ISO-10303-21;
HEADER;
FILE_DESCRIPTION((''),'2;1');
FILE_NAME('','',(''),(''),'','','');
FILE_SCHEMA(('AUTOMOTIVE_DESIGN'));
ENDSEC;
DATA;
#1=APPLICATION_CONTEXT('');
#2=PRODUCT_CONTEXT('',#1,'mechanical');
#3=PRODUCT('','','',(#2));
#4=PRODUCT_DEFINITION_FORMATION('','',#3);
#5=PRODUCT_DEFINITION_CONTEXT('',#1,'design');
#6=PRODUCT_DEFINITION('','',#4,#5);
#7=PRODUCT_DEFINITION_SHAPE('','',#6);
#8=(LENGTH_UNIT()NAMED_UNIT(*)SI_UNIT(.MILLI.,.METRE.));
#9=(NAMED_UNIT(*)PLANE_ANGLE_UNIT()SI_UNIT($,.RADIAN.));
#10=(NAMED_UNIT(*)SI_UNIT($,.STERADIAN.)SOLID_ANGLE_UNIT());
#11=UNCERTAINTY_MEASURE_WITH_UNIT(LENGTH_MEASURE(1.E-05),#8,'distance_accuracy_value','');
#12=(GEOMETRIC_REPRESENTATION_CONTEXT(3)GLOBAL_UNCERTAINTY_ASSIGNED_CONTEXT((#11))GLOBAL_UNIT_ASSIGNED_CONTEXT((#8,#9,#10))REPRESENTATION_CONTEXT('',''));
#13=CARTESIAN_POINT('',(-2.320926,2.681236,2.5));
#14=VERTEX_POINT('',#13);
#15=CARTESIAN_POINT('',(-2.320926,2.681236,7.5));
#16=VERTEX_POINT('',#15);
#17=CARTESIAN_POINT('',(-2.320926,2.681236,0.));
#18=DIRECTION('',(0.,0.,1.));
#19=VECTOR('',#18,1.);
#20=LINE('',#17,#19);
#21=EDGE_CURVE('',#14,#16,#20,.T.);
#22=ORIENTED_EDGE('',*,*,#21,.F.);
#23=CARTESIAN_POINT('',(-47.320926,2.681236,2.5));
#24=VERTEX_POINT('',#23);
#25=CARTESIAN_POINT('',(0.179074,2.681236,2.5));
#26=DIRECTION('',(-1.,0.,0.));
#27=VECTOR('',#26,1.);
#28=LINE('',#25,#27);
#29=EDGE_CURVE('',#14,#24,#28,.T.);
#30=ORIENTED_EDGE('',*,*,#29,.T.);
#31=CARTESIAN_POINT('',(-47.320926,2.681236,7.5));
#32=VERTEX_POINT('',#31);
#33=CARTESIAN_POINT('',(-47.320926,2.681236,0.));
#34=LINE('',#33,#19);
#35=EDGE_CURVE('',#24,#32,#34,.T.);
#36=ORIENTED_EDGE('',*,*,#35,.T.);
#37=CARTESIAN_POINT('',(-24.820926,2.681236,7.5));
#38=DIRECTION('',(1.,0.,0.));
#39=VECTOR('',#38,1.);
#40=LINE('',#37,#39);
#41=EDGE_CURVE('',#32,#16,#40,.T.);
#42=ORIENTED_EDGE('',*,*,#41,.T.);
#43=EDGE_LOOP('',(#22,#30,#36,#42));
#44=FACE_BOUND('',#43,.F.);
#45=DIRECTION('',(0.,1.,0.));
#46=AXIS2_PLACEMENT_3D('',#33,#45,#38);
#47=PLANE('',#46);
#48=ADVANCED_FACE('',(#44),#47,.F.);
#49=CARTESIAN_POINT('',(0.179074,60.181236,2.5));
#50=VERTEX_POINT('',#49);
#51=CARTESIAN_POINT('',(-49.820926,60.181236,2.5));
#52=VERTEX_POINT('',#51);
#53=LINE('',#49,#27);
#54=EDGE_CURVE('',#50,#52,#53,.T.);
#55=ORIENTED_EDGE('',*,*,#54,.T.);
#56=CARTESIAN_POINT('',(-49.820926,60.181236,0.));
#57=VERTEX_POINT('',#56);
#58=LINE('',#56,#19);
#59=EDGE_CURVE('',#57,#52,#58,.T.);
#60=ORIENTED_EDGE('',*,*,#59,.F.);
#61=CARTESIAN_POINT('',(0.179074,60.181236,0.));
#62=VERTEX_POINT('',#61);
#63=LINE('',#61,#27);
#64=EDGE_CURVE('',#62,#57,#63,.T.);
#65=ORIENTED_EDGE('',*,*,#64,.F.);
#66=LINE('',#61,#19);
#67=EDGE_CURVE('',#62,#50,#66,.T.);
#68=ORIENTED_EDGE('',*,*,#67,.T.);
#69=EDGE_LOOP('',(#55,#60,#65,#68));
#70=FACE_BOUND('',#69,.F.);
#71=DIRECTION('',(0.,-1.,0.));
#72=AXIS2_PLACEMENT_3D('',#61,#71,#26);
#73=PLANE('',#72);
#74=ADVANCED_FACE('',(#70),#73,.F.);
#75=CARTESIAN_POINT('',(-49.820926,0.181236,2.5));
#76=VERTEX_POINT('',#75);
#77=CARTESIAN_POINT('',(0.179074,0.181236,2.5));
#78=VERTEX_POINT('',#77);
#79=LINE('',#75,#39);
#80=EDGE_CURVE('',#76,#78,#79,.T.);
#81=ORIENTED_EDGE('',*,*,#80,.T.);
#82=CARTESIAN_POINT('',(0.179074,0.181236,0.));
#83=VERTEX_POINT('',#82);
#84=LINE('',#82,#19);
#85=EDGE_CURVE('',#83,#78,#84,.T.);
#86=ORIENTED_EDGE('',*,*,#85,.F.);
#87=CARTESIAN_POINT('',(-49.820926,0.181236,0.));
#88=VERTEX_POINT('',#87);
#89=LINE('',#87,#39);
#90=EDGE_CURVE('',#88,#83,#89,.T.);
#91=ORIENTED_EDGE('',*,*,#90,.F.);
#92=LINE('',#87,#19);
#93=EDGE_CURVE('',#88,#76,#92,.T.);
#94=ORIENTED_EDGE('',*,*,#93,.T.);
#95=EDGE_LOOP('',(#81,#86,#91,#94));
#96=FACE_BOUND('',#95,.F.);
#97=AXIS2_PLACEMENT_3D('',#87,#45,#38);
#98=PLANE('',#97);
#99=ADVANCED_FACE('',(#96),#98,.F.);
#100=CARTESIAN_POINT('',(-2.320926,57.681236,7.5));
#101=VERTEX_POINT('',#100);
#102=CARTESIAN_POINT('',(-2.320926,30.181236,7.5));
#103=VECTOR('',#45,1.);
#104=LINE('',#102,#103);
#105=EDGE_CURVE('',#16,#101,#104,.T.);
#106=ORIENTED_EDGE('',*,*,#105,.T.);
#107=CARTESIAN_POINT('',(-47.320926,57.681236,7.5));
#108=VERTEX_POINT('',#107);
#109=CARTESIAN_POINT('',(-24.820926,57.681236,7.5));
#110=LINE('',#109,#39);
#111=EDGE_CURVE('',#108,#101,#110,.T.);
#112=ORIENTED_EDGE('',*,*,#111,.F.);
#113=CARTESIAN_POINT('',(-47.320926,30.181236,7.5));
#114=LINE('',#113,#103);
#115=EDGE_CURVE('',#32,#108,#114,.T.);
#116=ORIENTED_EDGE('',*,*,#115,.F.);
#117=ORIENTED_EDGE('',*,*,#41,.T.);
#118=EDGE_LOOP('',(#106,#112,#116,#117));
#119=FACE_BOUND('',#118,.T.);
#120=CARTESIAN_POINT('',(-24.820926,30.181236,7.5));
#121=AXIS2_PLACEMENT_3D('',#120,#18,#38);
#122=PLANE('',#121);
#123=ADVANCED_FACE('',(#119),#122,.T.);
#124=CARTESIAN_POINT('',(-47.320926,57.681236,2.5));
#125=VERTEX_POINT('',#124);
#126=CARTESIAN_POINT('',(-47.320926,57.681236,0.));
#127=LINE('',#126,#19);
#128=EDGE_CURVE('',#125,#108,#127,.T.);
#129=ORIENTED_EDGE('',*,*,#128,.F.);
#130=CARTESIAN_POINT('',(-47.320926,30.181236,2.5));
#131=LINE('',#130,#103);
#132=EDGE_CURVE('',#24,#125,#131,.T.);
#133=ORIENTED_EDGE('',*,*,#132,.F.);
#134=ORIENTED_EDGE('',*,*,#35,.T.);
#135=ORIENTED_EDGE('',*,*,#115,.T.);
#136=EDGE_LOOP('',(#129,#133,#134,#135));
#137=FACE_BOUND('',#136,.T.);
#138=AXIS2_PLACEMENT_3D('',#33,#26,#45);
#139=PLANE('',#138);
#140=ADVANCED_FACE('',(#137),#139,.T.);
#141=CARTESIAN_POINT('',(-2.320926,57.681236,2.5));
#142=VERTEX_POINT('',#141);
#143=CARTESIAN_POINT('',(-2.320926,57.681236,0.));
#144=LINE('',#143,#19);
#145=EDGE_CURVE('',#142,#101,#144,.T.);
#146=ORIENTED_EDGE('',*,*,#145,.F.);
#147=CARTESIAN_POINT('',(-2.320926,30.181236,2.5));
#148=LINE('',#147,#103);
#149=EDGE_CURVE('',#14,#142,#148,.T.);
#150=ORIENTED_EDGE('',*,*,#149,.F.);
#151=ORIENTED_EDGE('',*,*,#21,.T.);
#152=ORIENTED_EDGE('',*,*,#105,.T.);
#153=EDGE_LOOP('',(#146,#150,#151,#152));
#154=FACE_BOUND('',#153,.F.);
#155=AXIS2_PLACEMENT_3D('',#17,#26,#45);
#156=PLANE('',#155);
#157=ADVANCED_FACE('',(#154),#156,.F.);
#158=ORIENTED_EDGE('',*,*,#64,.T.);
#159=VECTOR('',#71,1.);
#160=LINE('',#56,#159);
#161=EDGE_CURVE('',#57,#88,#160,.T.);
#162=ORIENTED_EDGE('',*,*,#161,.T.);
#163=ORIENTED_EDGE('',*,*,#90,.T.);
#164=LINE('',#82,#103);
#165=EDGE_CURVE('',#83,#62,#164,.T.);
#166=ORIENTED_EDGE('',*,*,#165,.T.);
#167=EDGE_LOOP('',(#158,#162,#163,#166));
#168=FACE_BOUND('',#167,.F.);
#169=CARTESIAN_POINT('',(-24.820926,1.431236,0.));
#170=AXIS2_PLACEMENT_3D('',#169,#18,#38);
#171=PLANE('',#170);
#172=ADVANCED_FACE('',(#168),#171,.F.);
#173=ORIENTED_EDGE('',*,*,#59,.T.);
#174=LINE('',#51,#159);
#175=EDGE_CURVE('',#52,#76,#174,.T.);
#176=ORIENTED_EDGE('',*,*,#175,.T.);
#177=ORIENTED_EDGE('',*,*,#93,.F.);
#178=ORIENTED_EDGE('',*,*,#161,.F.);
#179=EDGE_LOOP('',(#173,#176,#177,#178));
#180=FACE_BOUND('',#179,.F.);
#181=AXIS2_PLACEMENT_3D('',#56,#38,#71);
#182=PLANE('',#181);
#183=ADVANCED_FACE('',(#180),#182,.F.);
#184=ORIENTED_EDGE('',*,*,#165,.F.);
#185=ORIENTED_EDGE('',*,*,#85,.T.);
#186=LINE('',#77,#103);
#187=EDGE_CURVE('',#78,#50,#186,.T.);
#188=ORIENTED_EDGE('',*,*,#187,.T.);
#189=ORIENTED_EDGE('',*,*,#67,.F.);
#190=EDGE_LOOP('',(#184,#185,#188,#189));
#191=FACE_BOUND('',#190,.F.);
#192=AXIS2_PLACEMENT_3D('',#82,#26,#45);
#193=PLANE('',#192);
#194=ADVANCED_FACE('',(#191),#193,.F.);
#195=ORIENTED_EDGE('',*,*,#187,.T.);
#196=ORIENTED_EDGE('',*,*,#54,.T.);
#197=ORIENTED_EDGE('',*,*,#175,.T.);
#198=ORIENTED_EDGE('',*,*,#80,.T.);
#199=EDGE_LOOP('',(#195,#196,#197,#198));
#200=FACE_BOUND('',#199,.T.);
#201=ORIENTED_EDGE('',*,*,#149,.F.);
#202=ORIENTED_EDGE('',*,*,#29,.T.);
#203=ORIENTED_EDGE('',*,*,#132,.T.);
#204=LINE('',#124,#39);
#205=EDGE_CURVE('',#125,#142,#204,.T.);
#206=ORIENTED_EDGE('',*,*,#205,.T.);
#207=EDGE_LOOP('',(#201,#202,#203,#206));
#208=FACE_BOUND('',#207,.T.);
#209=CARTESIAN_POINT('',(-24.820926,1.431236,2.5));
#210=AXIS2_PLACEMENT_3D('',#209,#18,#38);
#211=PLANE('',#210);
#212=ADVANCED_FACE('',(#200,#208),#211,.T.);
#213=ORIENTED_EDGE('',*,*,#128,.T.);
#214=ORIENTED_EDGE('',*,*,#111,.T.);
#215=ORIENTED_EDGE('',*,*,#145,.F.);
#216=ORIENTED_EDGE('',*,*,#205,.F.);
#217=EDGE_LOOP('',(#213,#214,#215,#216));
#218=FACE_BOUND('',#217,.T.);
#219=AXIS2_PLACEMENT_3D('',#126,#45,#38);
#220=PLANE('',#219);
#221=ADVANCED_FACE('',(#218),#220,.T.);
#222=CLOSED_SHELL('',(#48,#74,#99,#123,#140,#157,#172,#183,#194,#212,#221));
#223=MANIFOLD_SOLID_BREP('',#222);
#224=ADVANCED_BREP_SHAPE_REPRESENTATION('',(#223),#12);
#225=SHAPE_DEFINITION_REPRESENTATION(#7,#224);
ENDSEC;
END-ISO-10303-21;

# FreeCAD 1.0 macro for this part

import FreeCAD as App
import Part
import Sketcher
from FreeCAD import Vector

doc = App.newDocument("Part")
body = doc.addObject("PartDesign::Body", "Body")

# Sketch on XY plane
sketch1 = body.newObject("Sketcher::SketchObject", "Sketch")
sketch1.AttachmentSupport = (doc.getObject("XY_Plane"), [""])
sketch1.MapMode = "FlatFace"
sketch1.addGeometry([
    Part.LineSegment(Vector(-47, 58, 0), Vector(-47, 3, 0)),
    Part.LineSegment(Vector(-47, 3, 0), Vector(-2, 3, 0)),
    Part.LineSegment(Vector(-2, 3, 0), Vector(-2, 58, 0)),
    Part.LineSegment(Vector(-2, 58, 0), Vector(-47, 58, 0)),
], False)
sketch1.addConstraint([
    Sketcher.Constraint("Coincident", 0, 2, 1, 1),
    Sketcher.Constraint("Coincident", 1, 2, 2, 1),
    Sketcher.Constraint("Coincident", 2, 2, 3, 1),
    Sketcher.Constraint("Coincident", 3, 2, 0, 1),
    Sketcher.Constraint("Vertical", 0),
    Sketcher.Constraint("Horizontal", 1),
    Sketcher.Constraint("Vertical", 2),
    Sketcher.Constraint("Horizontal", 3),
    Sketcher.Constraint("DistanceX", 1, 1, 1, 2, 45.0),
    Sketcher.Constraint("DistanceY", 0, 2, 0, 1, 55.0),
    Sketcher.Constraint("DistanceX", 0, 2, -1, 1, 47.320926),
    Sketcher.Constraint("DistanceY", -1, 1, 0, 2, 2.681236),
])
pad1 = body.newObject("PartDesign::Pad", "Pad")
pad1.Profile = sketch1
pad1.Length = 7.5

# Sketch on XY plane
sketch2 = body.newObject("Sketcher::SketchObject", "Sketch001")
sketch2.AttachmentSupport = (doc.getObject("XY_Plane"), [""])
sketch2.MapMode = "FlatFace"
sketch2.addGeometry([
    Part.LineSegment(Vector(-50, 0, 0), Vector(0, 0, 0)),  # 0
    Part.LineSegment(Vector(0, 0, 0), Vector(0, 60, 0)),  # 1
    Part.LineSegment(Vector(0, 60, 0), Vector(-50, 60, 0)),  # 2
    Part.LineSegment(Vector(-50, 60, 0), Vector(-50, 0, 0)),  # 3
    Part.LineSegment(Vector(-2, 3, 0), Vector(-47, 3, 0)),  # 4
    Part.LineSegment(Vector(-47, 3, 0), Vector(-47, 58, 0)),  # 5
    Part.LineSegment(Vector(-47, 58, 0), Vector(-2, 58, 0)),  # 6
    Part.LineSegment(Vector(-2, 58, 0), Vector(-2, 3, 0)),  # 7
], False)
sketch2.addConstraint([
    Sketcher.Constraint("Coincident", 0, 2, 1, 1),
    Sketcher.Constraint("Coincident", 1, 2, 2, 1),
    Sketcher.Constraint("Coincident", 2, 2, 3, 1),
    Sketcher.Constraint("Coincident", 3, 2, 0, 1),
    Sketcher.Constraint("Coincident", 4, 2, 5, 1),
    Sketcher.Constraint("Coincident", 5, 2, 6, 1),
    Sketcher.Constraint("Coincident", 6, 2, 7, 1),
    Sketcher.Constraint("Coincident", 7, 2, 4, 1),
    Sketcher.Constraint("Horizontal", 0),
    Sketcher.Constraint("Vertical", 1),
    Sketcher.Constraint("Horizontal", 2),
    Sketcher.Constraint("Vertical", 3),
    Sketcher.Constraint("Horizontal", 4),
    Sketcher.Constraint("Vertical", 5),
    Sketcher.Constraint("Horizontal", 6),
    Sketcher.Constraint("Vertical", 7),
    Sketcher.Constraint("DistanceX", 0, 1, 0, 2, 50.0),
    Sketcher.Constraint("DistanceX", 4, 2, 4, 1, 45.0),
    Sketcher.Constraint("DistanceY", 1, 1, 1, 2, 60.0),
    Sketcher.Constraint("DistanceY", 5, 1, 5, 2, 55.0),
    Sketcher.Constraint("DistanceX", 3, 2, 4, 2, 2.5),
    Sketcher.Constraint("DistanceY", 3, 2, 4, 2, 2.5),
    Sketcher.Constraint("DistanceX", -1, 1, 0, 2, 0.179074),
    Sketcher.Constraint("DistanceY", -1, 1, 0, 2, 0.181236),
])
pad2 = body.newObject("PartDesign::Pad", "Pad001")
pad2.Profile = sketch2
pad2.Length = 2.5

doc.recompute()
